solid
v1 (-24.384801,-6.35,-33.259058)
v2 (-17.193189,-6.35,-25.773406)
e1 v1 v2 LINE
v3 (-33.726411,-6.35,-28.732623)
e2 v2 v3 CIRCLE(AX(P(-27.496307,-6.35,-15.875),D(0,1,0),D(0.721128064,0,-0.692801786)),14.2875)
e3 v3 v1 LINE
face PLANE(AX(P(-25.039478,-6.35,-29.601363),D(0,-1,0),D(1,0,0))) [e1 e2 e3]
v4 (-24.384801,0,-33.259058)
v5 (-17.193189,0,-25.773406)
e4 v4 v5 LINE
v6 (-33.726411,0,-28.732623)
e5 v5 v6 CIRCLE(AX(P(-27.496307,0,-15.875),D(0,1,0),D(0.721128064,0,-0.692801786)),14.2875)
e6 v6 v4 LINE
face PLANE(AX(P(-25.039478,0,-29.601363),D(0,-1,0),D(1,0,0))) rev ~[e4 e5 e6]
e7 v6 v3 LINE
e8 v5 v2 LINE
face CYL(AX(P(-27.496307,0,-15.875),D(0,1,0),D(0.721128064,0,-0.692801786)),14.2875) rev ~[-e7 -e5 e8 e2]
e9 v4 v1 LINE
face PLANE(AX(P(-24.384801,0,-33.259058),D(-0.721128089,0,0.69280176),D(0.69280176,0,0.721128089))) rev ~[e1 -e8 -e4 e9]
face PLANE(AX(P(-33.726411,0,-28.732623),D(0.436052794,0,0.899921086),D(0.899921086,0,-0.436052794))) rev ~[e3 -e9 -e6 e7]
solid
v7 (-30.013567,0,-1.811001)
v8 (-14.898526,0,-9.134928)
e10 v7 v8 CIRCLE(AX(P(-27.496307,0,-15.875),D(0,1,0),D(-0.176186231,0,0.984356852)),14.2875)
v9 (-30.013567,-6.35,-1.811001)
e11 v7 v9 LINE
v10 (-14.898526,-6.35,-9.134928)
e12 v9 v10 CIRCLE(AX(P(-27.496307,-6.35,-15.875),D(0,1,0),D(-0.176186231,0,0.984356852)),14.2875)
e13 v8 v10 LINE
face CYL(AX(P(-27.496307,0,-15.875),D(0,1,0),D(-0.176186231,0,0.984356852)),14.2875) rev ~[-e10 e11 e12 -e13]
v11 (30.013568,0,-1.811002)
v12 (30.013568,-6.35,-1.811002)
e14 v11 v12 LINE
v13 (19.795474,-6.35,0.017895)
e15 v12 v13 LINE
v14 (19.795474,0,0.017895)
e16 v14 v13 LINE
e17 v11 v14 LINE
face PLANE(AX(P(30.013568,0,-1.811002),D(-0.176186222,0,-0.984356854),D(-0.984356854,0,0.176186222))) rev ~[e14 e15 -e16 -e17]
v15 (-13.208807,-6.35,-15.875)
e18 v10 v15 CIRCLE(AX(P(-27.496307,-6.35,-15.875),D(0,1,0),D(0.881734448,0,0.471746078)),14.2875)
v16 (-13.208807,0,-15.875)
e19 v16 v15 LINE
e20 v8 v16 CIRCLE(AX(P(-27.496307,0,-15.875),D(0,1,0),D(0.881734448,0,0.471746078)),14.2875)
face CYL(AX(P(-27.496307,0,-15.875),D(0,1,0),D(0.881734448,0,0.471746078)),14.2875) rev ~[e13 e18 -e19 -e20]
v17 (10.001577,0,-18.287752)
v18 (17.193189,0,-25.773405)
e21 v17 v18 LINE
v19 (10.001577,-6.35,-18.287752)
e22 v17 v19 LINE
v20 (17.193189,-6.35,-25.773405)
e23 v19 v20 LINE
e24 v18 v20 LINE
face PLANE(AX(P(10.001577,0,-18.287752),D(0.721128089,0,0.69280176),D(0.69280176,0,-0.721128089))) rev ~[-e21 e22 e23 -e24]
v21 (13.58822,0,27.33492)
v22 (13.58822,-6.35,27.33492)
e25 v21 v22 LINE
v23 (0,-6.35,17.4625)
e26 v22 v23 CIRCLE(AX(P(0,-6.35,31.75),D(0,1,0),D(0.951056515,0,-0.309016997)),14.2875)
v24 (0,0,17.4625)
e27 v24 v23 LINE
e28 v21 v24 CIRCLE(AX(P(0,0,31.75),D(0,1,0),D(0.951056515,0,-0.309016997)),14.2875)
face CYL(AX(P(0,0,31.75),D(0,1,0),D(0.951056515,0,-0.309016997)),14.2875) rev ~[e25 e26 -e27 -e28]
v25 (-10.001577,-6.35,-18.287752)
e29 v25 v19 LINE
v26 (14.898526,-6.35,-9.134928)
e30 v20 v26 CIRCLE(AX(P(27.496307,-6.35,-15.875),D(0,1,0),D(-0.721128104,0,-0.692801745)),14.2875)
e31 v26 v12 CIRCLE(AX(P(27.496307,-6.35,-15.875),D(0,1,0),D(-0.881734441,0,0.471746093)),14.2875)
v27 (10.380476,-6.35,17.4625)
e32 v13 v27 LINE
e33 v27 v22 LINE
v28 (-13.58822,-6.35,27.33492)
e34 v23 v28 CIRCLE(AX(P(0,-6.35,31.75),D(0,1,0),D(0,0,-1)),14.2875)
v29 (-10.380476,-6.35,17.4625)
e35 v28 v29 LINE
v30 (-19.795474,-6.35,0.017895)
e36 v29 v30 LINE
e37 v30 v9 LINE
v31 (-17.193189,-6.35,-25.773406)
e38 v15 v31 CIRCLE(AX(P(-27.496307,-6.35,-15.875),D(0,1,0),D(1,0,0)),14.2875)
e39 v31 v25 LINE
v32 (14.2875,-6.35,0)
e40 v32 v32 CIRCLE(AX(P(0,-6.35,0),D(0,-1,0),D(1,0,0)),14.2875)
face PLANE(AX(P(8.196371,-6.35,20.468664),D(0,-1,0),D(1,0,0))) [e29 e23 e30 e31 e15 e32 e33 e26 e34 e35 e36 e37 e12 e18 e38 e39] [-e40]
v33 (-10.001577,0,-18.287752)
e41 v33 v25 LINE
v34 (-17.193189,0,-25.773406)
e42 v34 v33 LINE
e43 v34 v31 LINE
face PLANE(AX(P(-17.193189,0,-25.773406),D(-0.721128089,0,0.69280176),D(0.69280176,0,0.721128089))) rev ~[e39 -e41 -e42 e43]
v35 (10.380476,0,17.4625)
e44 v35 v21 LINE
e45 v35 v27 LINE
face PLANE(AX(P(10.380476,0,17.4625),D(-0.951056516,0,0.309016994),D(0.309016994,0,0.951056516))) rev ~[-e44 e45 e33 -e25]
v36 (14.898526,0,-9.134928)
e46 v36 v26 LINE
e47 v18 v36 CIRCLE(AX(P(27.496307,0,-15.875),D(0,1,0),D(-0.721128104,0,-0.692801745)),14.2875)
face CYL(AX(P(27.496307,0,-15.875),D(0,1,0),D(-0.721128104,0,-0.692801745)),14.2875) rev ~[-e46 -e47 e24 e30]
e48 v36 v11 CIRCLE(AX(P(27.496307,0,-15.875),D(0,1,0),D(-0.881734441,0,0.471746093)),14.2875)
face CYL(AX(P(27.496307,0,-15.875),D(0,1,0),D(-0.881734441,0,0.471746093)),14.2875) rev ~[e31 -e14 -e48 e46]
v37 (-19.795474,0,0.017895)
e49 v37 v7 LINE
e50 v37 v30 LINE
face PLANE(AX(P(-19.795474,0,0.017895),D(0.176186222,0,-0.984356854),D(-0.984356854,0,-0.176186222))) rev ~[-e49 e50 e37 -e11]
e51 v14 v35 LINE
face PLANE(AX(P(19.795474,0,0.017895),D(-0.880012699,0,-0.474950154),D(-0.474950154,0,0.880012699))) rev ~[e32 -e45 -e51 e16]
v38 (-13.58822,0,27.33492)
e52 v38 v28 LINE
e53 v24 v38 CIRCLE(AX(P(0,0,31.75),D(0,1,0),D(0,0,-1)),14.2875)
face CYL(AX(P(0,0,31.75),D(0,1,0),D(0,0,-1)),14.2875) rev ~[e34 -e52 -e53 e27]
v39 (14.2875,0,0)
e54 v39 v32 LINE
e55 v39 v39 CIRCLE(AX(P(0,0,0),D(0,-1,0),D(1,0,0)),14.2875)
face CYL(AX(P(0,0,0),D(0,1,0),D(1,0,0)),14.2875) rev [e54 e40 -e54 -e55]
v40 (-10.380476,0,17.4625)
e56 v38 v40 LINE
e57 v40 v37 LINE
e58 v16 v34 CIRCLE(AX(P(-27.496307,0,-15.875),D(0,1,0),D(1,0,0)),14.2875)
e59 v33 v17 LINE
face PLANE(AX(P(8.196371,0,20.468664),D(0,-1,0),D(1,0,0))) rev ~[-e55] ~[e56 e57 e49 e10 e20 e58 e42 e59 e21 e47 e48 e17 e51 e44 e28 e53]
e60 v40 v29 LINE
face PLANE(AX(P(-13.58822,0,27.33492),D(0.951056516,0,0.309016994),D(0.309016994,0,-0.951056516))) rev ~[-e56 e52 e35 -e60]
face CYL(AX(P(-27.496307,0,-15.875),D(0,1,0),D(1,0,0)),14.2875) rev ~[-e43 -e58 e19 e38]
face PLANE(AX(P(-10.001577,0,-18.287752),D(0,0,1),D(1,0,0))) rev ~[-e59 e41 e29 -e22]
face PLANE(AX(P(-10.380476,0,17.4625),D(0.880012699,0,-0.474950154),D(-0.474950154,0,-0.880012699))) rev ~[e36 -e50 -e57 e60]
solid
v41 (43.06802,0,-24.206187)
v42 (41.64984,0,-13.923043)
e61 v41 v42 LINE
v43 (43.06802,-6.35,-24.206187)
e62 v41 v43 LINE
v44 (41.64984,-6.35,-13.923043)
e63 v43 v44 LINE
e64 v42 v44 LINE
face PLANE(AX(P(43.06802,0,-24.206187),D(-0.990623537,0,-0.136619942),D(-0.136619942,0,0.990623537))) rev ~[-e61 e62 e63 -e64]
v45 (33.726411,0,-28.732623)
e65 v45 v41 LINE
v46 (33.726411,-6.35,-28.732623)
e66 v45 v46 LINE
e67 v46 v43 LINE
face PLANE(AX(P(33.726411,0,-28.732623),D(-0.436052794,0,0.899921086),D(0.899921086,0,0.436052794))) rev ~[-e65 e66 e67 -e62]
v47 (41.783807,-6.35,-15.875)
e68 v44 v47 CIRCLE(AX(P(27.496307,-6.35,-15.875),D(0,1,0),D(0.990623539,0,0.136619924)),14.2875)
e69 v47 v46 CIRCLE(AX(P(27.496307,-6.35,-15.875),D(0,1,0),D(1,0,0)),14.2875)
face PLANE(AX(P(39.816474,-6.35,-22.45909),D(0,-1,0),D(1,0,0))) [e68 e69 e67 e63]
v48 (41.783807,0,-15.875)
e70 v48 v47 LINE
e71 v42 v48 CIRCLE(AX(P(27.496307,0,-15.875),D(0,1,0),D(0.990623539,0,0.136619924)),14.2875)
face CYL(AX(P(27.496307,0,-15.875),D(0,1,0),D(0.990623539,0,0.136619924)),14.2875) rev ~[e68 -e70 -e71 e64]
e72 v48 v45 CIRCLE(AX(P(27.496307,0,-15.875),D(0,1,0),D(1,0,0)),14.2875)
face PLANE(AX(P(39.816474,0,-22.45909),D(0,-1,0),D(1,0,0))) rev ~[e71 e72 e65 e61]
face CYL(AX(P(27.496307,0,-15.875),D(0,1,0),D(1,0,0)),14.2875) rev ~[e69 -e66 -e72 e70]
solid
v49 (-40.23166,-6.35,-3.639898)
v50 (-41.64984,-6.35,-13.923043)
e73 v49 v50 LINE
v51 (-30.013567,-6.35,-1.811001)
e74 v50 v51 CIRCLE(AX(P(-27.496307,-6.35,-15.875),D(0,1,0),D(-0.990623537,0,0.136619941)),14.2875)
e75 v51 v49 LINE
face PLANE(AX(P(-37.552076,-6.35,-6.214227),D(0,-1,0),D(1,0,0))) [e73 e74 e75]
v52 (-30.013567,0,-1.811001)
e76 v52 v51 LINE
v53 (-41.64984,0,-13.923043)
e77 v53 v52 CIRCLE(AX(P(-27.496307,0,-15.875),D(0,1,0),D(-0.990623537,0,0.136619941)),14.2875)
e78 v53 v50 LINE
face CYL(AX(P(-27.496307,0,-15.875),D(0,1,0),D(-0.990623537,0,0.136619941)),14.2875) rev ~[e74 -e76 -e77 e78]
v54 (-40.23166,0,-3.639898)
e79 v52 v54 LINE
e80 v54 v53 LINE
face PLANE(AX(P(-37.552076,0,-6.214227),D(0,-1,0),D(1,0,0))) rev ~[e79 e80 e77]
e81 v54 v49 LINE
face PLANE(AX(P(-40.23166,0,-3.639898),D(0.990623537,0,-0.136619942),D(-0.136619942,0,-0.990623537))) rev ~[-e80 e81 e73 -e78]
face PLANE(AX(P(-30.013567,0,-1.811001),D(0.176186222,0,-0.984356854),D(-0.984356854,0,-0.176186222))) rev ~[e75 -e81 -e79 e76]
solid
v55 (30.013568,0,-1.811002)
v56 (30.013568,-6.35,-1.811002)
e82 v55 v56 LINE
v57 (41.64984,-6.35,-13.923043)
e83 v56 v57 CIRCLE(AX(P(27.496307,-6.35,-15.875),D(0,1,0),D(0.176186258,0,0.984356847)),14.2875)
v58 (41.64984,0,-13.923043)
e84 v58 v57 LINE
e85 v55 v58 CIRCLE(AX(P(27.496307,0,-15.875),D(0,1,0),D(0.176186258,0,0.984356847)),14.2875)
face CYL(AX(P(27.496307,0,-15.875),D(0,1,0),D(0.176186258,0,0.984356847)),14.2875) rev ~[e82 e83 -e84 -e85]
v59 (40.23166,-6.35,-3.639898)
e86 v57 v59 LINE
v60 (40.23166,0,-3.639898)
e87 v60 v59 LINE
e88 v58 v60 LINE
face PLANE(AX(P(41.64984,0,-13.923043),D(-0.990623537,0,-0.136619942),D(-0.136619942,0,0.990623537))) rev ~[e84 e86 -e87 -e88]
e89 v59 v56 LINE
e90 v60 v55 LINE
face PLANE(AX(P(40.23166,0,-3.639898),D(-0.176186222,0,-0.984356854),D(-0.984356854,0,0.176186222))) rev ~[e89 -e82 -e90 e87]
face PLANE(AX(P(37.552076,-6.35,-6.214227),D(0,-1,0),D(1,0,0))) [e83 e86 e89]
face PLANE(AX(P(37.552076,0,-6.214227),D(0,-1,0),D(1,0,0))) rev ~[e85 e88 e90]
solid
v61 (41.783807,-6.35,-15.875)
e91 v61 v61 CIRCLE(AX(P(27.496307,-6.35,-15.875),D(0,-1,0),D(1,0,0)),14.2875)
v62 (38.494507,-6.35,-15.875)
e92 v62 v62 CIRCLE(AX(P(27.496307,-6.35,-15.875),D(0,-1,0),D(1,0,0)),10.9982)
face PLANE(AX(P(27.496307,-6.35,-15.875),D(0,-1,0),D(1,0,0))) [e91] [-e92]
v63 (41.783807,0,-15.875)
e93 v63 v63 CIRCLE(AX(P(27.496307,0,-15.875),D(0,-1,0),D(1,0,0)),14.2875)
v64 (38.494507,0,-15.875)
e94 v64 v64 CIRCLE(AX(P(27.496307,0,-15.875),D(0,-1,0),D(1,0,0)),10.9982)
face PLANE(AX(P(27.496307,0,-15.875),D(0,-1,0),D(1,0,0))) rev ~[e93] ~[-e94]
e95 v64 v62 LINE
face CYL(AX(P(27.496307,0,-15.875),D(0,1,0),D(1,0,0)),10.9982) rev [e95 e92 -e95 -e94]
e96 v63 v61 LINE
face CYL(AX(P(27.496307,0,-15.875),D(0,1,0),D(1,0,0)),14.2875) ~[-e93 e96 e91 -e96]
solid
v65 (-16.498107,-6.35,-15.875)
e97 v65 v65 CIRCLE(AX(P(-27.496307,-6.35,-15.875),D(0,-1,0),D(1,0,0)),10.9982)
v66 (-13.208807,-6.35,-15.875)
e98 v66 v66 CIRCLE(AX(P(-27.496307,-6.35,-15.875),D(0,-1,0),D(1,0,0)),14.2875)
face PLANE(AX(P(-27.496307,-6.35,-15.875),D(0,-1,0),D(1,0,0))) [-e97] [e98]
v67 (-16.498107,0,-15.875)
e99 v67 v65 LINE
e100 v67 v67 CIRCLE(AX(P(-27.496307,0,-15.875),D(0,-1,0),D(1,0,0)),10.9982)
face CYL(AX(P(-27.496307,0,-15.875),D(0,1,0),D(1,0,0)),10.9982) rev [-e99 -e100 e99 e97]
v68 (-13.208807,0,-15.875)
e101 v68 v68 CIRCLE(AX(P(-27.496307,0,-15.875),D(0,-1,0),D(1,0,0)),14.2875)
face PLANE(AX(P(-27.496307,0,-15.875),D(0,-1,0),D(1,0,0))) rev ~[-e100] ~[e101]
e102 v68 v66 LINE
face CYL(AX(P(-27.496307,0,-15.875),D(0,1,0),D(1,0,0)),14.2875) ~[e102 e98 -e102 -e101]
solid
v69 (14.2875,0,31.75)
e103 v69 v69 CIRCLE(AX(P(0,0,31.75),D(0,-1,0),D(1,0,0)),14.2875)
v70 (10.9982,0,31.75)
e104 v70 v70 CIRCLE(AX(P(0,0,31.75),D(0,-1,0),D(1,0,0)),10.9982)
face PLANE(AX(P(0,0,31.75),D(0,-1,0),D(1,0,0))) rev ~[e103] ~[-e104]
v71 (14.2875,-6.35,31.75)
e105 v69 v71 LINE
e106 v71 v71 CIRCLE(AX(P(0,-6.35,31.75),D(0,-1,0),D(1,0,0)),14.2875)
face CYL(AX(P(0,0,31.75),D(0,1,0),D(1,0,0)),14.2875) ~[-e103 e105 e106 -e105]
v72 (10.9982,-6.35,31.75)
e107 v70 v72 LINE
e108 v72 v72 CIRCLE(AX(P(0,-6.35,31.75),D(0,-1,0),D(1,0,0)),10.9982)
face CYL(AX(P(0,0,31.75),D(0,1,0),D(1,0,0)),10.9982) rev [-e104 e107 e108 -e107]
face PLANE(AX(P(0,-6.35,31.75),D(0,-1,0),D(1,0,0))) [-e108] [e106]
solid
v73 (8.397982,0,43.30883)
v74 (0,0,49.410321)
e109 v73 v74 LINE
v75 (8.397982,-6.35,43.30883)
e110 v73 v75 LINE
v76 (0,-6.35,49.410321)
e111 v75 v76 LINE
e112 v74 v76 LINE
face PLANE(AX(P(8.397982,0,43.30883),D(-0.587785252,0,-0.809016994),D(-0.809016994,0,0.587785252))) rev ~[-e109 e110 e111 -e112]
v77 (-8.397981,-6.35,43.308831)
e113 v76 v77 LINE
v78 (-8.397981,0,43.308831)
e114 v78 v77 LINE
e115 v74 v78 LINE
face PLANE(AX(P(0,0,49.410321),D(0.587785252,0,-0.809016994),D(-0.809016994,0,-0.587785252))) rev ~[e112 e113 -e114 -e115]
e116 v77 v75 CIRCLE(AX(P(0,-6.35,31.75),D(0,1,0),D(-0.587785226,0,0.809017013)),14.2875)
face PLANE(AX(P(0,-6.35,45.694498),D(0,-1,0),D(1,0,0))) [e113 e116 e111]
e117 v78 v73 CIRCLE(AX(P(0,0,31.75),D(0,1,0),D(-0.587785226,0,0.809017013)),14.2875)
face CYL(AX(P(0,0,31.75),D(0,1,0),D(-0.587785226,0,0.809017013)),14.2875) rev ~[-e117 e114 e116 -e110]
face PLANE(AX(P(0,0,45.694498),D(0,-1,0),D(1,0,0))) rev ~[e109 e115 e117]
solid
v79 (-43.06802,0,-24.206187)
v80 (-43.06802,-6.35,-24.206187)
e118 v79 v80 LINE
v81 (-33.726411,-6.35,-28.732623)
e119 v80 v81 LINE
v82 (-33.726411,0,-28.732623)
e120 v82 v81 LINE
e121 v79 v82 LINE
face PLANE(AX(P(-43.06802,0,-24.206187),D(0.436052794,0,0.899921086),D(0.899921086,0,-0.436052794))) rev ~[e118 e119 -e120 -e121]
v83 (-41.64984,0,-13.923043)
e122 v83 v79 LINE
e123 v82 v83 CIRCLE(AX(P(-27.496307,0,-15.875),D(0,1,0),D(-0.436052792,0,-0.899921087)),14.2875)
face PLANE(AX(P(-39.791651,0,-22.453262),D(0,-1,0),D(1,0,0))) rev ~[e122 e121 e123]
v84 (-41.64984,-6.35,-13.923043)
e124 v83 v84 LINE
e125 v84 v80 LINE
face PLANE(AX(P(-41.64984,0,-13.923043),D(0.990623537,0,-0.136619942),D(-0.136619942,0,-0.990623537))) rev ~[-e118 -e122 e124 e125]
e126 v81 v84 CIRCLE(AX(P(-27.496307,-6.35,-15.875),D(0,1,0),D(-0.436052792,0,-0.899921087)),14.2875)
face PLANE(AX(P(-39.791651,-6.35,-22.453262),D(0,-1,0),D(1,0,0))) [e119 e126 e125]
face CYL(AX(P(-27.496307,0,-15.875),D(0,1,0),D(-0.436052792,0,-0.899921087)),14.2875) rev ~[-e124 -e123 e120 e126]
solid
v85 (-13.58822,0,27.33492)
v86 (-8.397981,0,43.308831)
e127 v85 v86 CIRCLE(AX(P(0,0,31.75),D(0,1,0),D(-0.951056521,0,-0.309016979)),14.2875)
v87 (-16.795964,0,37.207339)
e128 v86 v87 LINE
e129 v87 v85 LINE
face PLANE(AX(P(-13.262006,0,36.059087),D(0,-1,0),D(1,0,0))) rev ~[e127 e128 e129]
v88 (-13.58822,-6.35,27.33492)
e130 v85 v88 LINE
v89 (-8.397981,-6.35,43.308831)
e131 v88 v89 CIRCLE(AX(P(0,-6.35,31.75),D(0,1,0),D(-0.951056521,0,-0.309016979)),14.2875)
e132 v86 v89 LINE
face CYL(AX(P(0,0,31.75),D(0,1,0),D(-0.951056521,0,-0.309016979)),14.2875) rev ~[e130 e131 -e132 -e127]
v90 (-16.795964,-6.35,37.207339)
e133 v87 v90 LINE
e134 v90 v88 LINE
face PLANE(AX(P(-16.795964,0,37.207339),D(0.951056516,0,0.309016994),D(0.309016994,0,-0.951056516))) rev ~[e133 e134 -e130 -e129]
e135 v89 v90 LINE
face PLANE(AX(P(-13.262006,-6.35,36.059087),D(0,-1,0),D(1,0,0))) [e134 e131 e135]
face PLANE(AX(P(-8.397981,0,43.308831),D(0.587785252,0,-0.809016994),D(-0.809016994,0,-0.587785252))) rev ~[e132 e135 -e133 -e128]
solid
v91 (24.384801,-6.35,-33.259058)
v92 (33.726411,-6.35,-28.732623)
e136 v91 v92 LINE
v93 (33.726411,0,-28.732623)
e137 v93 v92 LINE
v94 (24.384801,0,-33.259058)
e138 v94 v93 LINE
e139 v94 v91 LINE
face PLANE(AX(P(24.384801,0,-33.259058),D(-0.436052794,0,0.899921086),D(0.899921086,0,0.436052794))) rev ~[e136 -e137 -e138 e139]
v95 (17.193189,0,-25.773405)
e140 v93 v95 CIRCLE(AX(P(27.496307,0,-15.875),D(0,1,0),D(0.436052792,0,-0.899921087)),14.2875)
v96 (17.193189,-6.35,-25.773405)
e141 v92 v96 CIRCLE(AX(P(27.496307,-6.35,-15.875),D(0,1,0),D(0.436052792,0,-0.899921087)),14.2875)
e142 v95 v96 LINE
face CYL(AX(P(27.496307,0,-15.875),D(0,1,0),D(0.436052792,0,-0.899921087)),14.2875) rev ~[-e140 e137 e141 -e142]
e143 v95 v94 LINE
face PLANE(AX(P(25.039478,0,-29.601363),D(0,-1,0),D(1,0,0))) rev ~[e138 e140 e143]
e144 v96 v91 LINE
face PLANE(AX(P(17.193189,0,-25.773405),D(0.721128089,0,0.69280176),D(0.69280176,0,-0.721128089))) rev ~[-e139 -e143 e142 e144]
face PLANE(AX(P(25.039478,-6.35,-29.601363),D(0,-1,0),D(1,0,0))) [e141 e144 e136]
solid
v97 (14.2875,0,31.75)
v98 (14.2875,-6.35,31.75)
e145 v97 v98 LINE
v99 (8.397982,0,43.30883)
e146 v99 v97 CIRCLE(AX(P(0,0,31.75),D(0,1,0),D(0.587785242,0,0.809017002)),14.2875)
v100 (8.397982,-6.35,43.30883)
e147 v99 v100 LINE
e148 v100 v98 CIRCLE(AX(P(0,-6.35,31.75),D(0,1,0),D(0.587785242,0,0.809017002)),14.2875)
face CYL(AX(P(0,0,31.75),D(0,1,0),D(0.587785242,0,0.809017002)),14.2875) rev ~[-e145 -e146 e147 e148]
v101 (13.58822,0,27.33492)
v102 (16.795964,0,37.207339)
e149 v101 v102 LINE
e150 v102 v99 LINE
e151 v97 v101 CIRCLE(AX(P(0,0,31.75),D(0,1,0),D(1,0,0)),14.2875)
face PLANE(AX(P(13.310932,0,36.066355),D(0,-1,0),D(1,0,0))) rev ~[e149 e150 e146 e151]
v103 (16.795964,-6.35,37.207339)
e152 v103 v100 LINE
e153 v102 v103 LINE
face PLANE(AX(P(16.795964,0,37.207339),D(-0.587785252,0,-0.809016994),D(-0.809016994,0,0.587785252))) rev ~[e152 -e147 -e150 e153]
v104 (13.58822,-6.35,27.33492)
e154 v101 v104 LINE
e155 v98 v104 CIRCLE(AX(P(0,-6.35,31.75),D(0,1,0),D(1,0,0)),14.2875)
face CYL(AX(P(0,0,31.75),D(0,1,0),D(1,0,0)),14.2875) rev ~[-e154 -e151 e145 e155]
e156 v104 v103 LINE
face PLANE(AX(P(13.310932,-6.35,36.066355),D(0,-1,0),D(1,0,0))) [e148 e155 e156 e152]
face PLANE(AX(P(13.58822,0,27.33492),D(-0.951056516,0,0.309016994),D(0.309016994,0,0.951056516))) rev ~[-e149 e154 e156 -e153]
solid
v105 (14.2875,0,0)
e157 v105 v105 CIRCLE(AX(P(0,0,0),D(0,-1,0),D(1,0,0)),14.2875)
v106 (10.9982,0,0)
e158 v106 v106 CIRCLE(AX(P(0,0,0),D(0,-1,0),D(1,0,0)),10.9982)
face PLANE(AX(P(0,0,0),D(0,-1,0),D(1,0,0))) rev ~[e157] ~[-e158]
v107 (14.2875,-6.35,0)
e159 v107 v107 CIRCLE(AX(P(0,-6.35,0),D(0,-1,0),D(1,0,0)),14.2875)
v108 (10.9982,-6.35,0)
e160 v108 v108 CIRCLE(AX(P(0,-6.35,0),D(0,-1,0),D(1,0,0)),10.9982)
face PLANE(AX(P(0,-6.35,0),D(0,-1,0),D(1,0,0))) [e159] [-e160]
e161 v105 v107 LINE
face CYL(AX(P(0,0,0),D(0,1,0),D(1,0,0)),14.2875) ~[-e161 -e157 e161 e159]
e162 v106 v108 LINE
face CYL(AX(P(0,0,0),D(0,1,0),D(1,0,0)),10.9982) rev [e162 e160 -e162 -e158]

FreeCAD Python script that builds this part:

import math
import FreeCAD as App
import Part
import Sketcher
from FreeCAD import Vector
Q = App.Units.Quantity

doc = App.newDocument("Part")
params = doc.addObject("Spreadsheet::Sheet", "Params")
for row, (alias, value) in enumerate([
    ("sketch1_radius", "0.5625 in"),
    ("pad1_length", "0.25 in"),
    ("sketch2_radius", "0.5625 in"),
    ("pad2_length", "0.25 in"),
    ("sketch3_diameter", "1.125 in"),
    ("pad3_length", "0.25 in"),
    ("sketch4_radius", "0.5625 in"),
    ("pad4_length", "0.25 in"),
    ("sketch5_radius", "0.5625 in"),
    ("pad5_length", "0.25 in"),
    ("sketch6_radius", "0.5625 in"),
    ("pad6_length", "0.25 in"),
    ("sketch7_radius", "0.5625 in"),
    ("pad7_length", "0.25 in"),
    ("sketch8_radius", "0.5625 in"),
    ("pad8_length", "0.25 in"),
    ("sketch9_radius", "0.5625 in"),
    ("pad9_length", "0.25 in"),
    ("sketch10_radius", "0.5625 in"),
    ("pad10_length", "0.25 in"),
    ("sketch11_diameter", "1.125 in"),
    ("sketch11_diameter2", "0.866 in"),
    ("pad11_length", "0.25 in"),
    ("sketch12_diameter", "1.125 in"),
    ("sketch12_diameter2", "0.866 in"),
    ("pad12_length", "0.25 in"),
    ("sketch13_diameter", "1.125 in"),
    ("sketch13_diameter2", "0.866 in"),
    ("pad13_length", "0.25 in"),
    ("sketch14_diameter", "1.125 in"),
    ("sketch14_diameter2", "0.866 in"),
    ("pad14_length", "0.25 in"),
], start=1):
    params.set(f"A{row}", alias)
    params.set(f"B{row}", "=" + value)
    params.setAlias(f"B{row}", alias)

body = doc.addObject("PartDesign::Body", "Body")

# Sketch on XZ plane
sketch1 = body.newObject("Sketcher::SketchObject", "Sketch")
sketch1.AttachmentSupport = (doc.getObject("XZ_Plane"), [""])
sketch1.MapMode = "FlatFace"
sketch1.addGeometry(Part.ArcOfCircle(Part.Circle(Vector(0, 31.75, 0), Vector(0, 0, 1), 14.2875), math.radians(54.000001), math.radians(125.999998)), False)
sketch1.addGeometry(Part.LineSegment(Vector(8.397982, 43.30883, 0), Vector(0, 49.410321, 0)), False)
sketch1.addGeometry(Part.LineSegment(Vector(0, 49.410321, 0), Vector(-8.397981, 43.308831, 0)), False)
sketch1.addConstraint(Sketcher.Constraint("Tangent", 0, 1, 1, 1))
sketch1.addConstraint(Sketcher.Constraint("Coincident", 1, 2, 2, 1))
sketch1.addConstraint(Sketcher.Constraint("Tangent", 2, 2, 0, 2))
sketch1.addConstraint(Sketcher.Constraint("Symmetric", 0, 1, 2, 2, -2))
sketch1.addConstraint(Sketcher.Constraint("Angle", 1, Q("144 deg")))
sketch1.addConstraint(Sketcher.Constraint("Radius", 0, Q("0.5625 in")))
sketch1.addConstraint(Sketcher.Constraint("DistanceY", -1, 1, 0, 3, Q("1.25 in")))
sketch1.setExpression("Constraints[5]", "Params.sketch1_radius")
pad1 = body.newObject("PartDesign::Pad", "Pad")
pad1.Profile = sketch1
pad1.setExpression("Length", "Params.pad1_length")
body2 = doc.addObject("PartDesign::Body", "Body001")

# Sketch on XZ plane
sketch2 = body2.newObject("Sketcher::SketchObject", "Sketch001")
sketch2.AttachmentSupport = (doc.getObject("XZ_Plane001"), [""])
sketch2.MapMode = "FlatFace"
sketch2.addGeometry(Part.ArcOfCircle(Part.Circle(Vector(0, 31.75, 0), Vector(0, 0, 1), 14.2875), math.radians(0), math.radians(54.000001)), False)
sketch2.addGeometry(Part.ArcOfCircle(Part.Circle(Vector(0, 31.75, 0), Vector(0, 0, 1), 14.2875), math.radians(-18), math.radians(0)), False)
sketch2.addGeometry(Part.LineSegment(Vector(13.58822, 27.33492, 0), Vector(16.795964, 37.207339, 0)), False)
sketch2.addGeometry(Part.LineSegment(Vector(16.795964, 37.207339, 0), Vector(8.397982, 43.30883, 0)), False)
sketch2.addConstraint(Sketcher.Constraint("Tangent", 0, 1, 1, 2))
sketch2.addConstraint(Sketcher.Constraint("Tangent", 1, 1, 2, 1))
sketch2.addConstraint(Sketcher.Constraint("Coincident", 2, 2, 3, 1))
sketch2.addConstraint(Sketcher.Constraint("Tangent", 3, 2, 0, 2))
sketch2.addConstraint(Sketcher.Constraint("Equal", 0, 1))
sketch2.addConstraint(Sketcher.Constraint("PointOnObject", 0, 3, -2))
sketch2.addConstraint(Sketcher.Constraint("Horizontal", 1, 3, 0, 1))
sketch2.addConstraint(Sketcher.Constraint("Angle", 2, Q("72 deg")))
sketch2.addConstraint(Sketcher.Constraint("Angle", 3, Q("144 deg")))
sketch2.addConstraint(Sketcher.Constraint("Radius", 0, Q("0.5625 in")))
sketch2.addConstraint(Sketcher.Constraint("DistanceY", -1, 1, 0, 3, Q("1.25 in")))
sketch2.setExpression("Constraints[9]", "Params.sketch2_radius")
pad2 = body2.newObject("PartDesign::Pad", "Pad001")
pad2.Profile = sketch2
pad2.setExpression("Length", "Params.pad2_length")
body3 = doc.addObject("PartDesign::Body", "Body002")

# Sketch on XZ plane
sketch3 = body3.newObject("Sketcher::SketchObject", "Sketch002")
sketch3.AttachmentSupport = (doc.getObject("XZ_Plane002"), [""])
sketch3.MapMode = "FlatFace"
sketch3.addGeometry(Part.LineSegment(Vector(10.380476, 17.4625, 0), Vector(13.58822, 27.33492, 0)), False)
sketch3.addGeometry(Part.ArcOfCircle(Part.Circle(Vector(0, 31.75, 0), Vector(0, 0, 1), 14.2875), math.radians(-90), math.radians(-18)), False)
sketch3.addGeometry(Part.ArcOfCircle(Part.Circle(Vector(0, 31.75, 0), Vector(0, 0, 1), 14.2875), math.radians(-162.000001), math.radians(-90)), False)
sketch3.addGeometry(Part.LineSegment(Vector(-13.58822, 27.33492, 0), Vector(-10.380476, 17.4625, 0)), False)
sketch3.addGeometry(Part.LineSegment(Vector(-10.380476, 17.4625, 0), Vector(-19.795474, 0.017895, 0)), False)
sketch3.addGeometry(Part.LineSegment(Vector(-19.795474, 0.017895, 0), Vector(-30.013567, -1.811001, 0)), False)
sketch3.addGeometry(Part.ArcOfCircle(Part.Circle(Vector(-27.496307, -15.875, 0), Vector(0, 0, 1), 14.2875), math.radians(28.147698), math.radians(100.147697)), False)
sketch3.addGeometry(Part.ArcOfCircle(Part.Circle(Vector(-27.496307, -15.875, 0), Vector(0, 0, 1), 14.2875), math.radians(0), math.radians(28.147698)), False)
sketch3.addGeometry(Part.ArcOfCircle(Part.Circle(Vector(-27.496307, -15.875, 0), Vector(0, 0, 1), 14.2875), math.radians(-43.852306), math.radians(0)), False)
sketch3.addGeometry(Part.LineSegment(Vector(-17.193189, -25.773406, 0), Vector(-10.001577, -18.287752, 0)), False)
sketch3.addGeometry(Part.LineSegment(Vector(-10.001577, -18.287752, 0), Vector(10.001577, -18.287752, 0)), False)
sketch3.addGeometry(Part.LineSegment(Vector(10.001577, -18.287752, 0), Vector(17.193189, -25.773405, 0)), False)
sketch3.addGeometry(Part.ArcOfCircle(Part.Circle(Vector(27.496307, -15.875, 0), Vector(0, 0, 1), 14.2875), math.radians(151.852301), math.radians(223.852302)), False)
sketch3.addGeometry(Part.ArcOfCircle(Part.Circle(Vector(27.496307, -15.875, 0), Vector(0, 0, 1), 14.2875), math.radians(79.852302), math.radians(151.852301)), False)
sketch3.addGeometry(Part.LineSegment(Vector(30.013568, -1.811002, 0), Vector(19.795474, 0.017895, 0)), False)
sketch3.addGeometry(Part.LineSegment(Vector(19.795474, 0.017895, 0), Vector(10.380476, 17.4625, 0)), False)
sketch3.addGeometry(Part.Circle(Vector(0, 0, 0), Vector(0, 0, 1), 14.2875), False)
sketch3.addConstraint(Sketcher.Constraint("Tangent", 0, 2, 1, 2))
sketch3.addConstraint(Sketcher.Constraint("Tangent", 1, 1, 2, 2))
sketch3.addConstraint(Sketcher.Constraint("Tangent", 2, 1, 3, 1))
sketch3.addConstraint(Sketcher.Constraint("Coincident", 3, 2, 4, 1))
sketch3.addConstraint(Sketcher.Constraint("Coincident", 4, 2, 5, 1))
sketch3.addConstraint(Sketcher.Constraint("Tangent", 5, 2, 6, 2))
sketch3.addConstraint(Sketcher.Constraint("Tangent", 6, 1, 7, 2))
sketch3.addConstraint(Sketcher.Constraint("Tangent", 7, 1, 8, 2))
sketch3.addConstraint(Sketcher.Constraint("Tangent", 8, 1, 9, 1))
sketch3.addConstraint(Sketcher.Constraint("Coincident", 9, 2, 10, 1))
sketch3.addConstraint(Sketcher.Constraint("Coincident", 10, 2, 11, 1))
sketch3.addConstraint(Sketcher.Constraint("Tangent", 11, 2, 12, 2))
sketch3.addConstraint(Sketcher.Constraint("Tangent", 12, 1, 13, 2))
sketch3.addConstraint(Sketcher.Constraint("Tangent", 13, 1, 14, 1))
sketch3.addConstraint(Sketcher.Constraint("Coincident", 14, 2, 15, 1))
sketch3.addConstraint(Sketcher.Constraint("Coincident", 15, 2, 0, 1))
sketch3.addConstraint(Sketcher.Constraint("Horizontal", 10))
sketch3.addConstraint(Sketcher.Constraint("Coincident", 16, 3, -1, 1))
sketch3.addConstraint(Sketcher.Constraint("Coincident", 8, 3, 6, 3))
sketch3.addConstraint(Sketcher.Constraint("Equal", 1, 2))
sketch3.addConstraint(Sketcher.Constraint("Equal", 2, 6))
sketch3.addConstraint(Sketcher.Constraint("Equal", 8, 12))
sketch3.addConstraint(Sketcher.Constraint("Equal", 12, 13))
sketch3.addConstraint(Sketcher.Constraint("Equal", 13, 16))
sketch3.addConstraint(Sketcher.Constraint("Symmetric", 6, 3, 12, 3, -2))
sketch3.addConstraint(Sketcher.Constraint("Symmetric", 0, 2, 2, 1, -2))
sketch3.addConstraint(Sketcher.Constraint("Symmetric", 4, 2, 14, 2, -2))
sketch3.addConstraint(Sketcher.Constraint("PointOnObject", 1, 1, -2))
sketch3.addConstraint(Sketcher.Constraint("Horizontal", 1, 1, 3, 2))
sketch3.addConstraint(Sketcher.Constraint("Horizontal", 13, 3, 7, 1))
sketch3.addConstraint(Sketcher.Constraint("Horizontal", 8, 1, 11, 2))
sketch3.addConstraint(Sketcher.Constraint("Horizontal", 6, 1, 12, 1))
sketch3.addConstraint(Sketcher.Constraint("Horizontal", 3, 2, 15, 2))
sketch3.addConstraint(Sketcher.Constraint("Equal", 3, 5))
sketch3.addConstraint(Sketcher.Constraint("Equal", 5, 9))
sketch3.addConstraint(Sketcher.Constraint("Diameter", 16, Q("1.125 in")))
sketch3.addConstraint(Sketcher.Constraint("Angle", 0, Q("72 deg")))
sketch3.addConstraint(Sketcher.Constraint("DistanceY", -1, 1, 1, 3, Q("1.25 in")))
sketch3.addConstraint(Sketcher.Constraint("DistanceY", 6, 3, -1, 1, Q("0.625 in")))
sketch3.addConstraint(Sketcher.Constraint("DistanceY", 5, 2, -1, 1, 1.811001))
sketch3.addConstraint(Sketcher.Constraint("Distance", 4, 19.823128))
sketch3.addConstraint(Sketcher.Constraint("DistanceX", 10, 1, 10, 2, 20.003153))
sketch3.addConstraint(Sketcher.Constraint("DistanceX", 4, 2, 6, 1, 4.896949))
sketch3.setExpression("Constraints[35]", "Params.sketch3_diameter")
pad3 = body3.newObject("PartDesign::Pad", "Pad002")
pad3.Profile = sketch3
pad3.setExpression("Length", "Params.pad3_length")
body4 = doc.addObject("PartDesign::Body", "Body003")

# Sketch on XZ plane
sketch4 = body4.newObject("Sketcher::SketchObject", "Sketch003")
sketch4.AttachmentSupport = (doc.getObject("XZ_Plane003"), [""])
sketch4.MapMode = "FlatFace"
sketch4.addGeometry(Part.ArcOfCircle(Part.Circle(Vector(0, 31.75, 0), Vector(0, 0, 1), 14.2875), math.radians(125.999998), math.radians(197.999999)), False)
sketch4.addGeometry(Part.LineSegment(Vector(-8.397981, 43.308831, 0), Vector(-16.795964, 37.207339, 0)), False)
sketch4.addGeometry(Part.LineSegment(Vector(-16.795964, 37.207339, 0), Vector(-13.58822, 27.33492, 0)), False)
sketch4.addConstraint(Sketcher.Constraint("Tangent", 0, 1, 1, 1))
sketch4.addConstraint(Sketcher.Constraint("Coincident", 1, 2, 2, 1))
sketch4.addConstraint(Sketcher.Constraint("Tangent", 2, 2, 0, 2))
sketch4.addConstraint(Sketcher.Constraint("PointOnObject", 0, 3, -2))
sketch4.addConstraint(Sketcher.Constraint("Angle", 1, Q("-144 deg")))
sketch4.addConstraint(Sketcher.Constraint("Angle", 2, Q("-72 deg")))
sketch4.addConstraint(Sketcher.Constraint("Radius", 0, Q("0.5625 in")))
sketch4.addConstraint(Sketcher.Constraint("DistanceY", -1, 1, 0, 3, Q("1.25 in")))
sketch4.setExpression("Constraints[6]", "Params.sketch4_radius")
pad4 = body4.newObject("PartDesign::Pad", "Pad003")
pad4.Profile = sketch4
pad4.setExpression("Length", "Params.pad4_length")
body5 = doc.addObject("PartDesign::Body", "Body004")

# Sketch on XZ plane
sketch5 = body5.newObject("Sketcher::SketchObject", "Sketch004")
sketch5.AttachmentSupport = (doc.getObject("XZ_Plane004"), [""])
sketch5.MapMode = "FlatFace"
sketch5.addGeometry(Part.LineSegment(Vector(43.06802, -24.206187, 0), Vector(41.64984, -13.923043, 0)), False)
sketch5.addGeometry(Part.ArcOfCircle(Part.Circle(Vector(27.496307, -15.875, 0), Vector(0, 0, 1), 14.2875), math.radians(0), math.radians(7.852303)), False)
sketch5.addGeometry(Part.ArcOfCircle(Part.Circle(Vector(27.496307, -15.875, 0), Vector(0, 0, 1), 14.2875), math.radians(-64.147696), math.radians(0)), False)
sketch5.addGeometry(Part.LineSegment(Vector(33.726411, -28.732623, 0), Vector(43.06802, -24.206187, 0)), False)
sketch5.addConstraint(Sketcher.Constraint("Tangent", 0, 2, 1, 2))
sketch5.addConstraint(Sketcher.Constraint("Tangent", 1, 1, 2, 2))
sketch5.addConstraint(Sketcher.Constraint("Tangent", 2, 1, 3, 1))
sketch5.addConstraint(Sketcher.Constraint("Coincident", 3, 2, 0, 1))
sketch5.addConstraint(Sketcher.Constraint("Equal", 1, 2))
sketch5.addConstraint(Sketcher.Constraint("Horizontal", 2, 3, 1, 1))
sketch5.addConstraint(Sketcher.Constraint("Radius", 1, Q("0.5625 in")))
sketch5.addConstraint(Sketcher.Constraint("DistanceY", 1, 3, -1, 1, Q("0.625 in")))
sketch5.addConstraint(Sketcher.Constraint("DistanceX", -1, 1, 0, 2, 41.64984))
sketch5.addConstraint(Sketcher.Constraint("DistanceX", -1, 1, 2, 1, 33.726411))
sketch5.addConstraint(Sketcher.Constraint("DistanceX", -1, 1, 3, 2, 43.06802))
sketch5.setExpression("Constraints[6]", "Params.sketch5_radius")
pad5 = body5.newObject("PartDesign::Pad", "Pad004")
pad5.Profile = sketch5
pad5.setExpression("Length", "Params.pad5_length")
body6 = doc.addObject("PartDesign::Body", "Body005")

# Sketch on XZ plane
sketch6 = body6.newObject("Sketcher::SketchObject", "Sketch005")
sketch6.AttachmentSupport = (doc.getObject("XZ_Plane005"), [""])
sketch6.MapMode = "FlatFace"
sketch6.addGeometry(Part.ArcOfCircle(Part.Circle(Vector(27.496307, -15.875, 0), Vector(0, 0, 1), 14.2875), math.radians(-136.147698), math.radians(-64.147696)), False)
sketch6.addGeometry(Part.LineSegment(Vector(17.193189, -25.773405, 0), Vector(24.384801, -33.259058, 0)), False)
sketch6.addGeometry(Part.LineSegment(Vector(24.384801, -33.259058, 0), Vector(33.726411, -28.732623, 0)), False)
sketch6.addConstraint(Sketcher.Constraint("Tangent", 0, 1, 1, 1))
sketch6.addConstraint(Sketcher.Constraint("Coincident", 1, 2, 2, 1))
sketch6.addConstraint(Sketcher.Constraint("Tangent", 2, 2, 0, 2))
sketch6.addConstraint(Sketcher.Constraint("Radius", 0, Q("0.5625 in")))
sketch6.addConstraint(Sketcher.Constraint("DistanceY", 0, 3, -1, 1, Q("0.625 in")))
sketch6.addConstraint(Sketcher.Constraint("DistanceX", -1, 1, 1, 2, 24.384801))
sketch6.addConstraint(Sketcher.Constraint("DistanceX", -1, 1, 0, 1, 17.193189))
sketch6.addConstraint(Sketcher.Constraint("DistanceY", 1, 2, -1, 1, 33.259058))
sketch6.setExpression("Constraints[3]", "Params.sketch6_radius")
pad6 = body6.newObject("PartDesign::Pad", "Pad005")
pad6.Profile = sketch6
pad6.setExpression("Length", "Params.pad6_length")
body7 = doc.addObject("PartDesign::Body", "Body006")

# Sketch on XZ plane
sketch7 = body7.newObject("Sketcher::SketchObject", "Sketch006")
sketch7.AttachmentSupport = (doc.getObject("XZ_Plane006"), [""])
sketch7.MapMode = "FlatFace"
sketch7.addGeometry(Part.LineSegment(Vector(40.23166, -3.639898, 0), Vector(30.013568, -1.811002, 0)), False)
sketch7.addGeometry(Part.ArcOfCircle(Part.Circle(Vector(27.496307, -15.875, 0), Vector(0, 0, 1), 14.2875), math.radians(7.852303), math.radians(79.852302)), False)
sketch7.addGeometry(Part.LineSegment(Vector(41.64984, -13.923043, 0), Vector(40.23166, -3.639898, 0)), False)
sketch7.addConstraint(Sketcher.Constraint("Coincident", 0, 2, 1, 2))
sketch7.addConstraint(Sketcher.Constraint("Coincident", 1, 1, 2, 1))
sketch7.addConstraint(Sketcher.Constraint("Coincident", 2, 2, 0, 1))
sketch7.addConstraint(Sketcher.Constraint("Radius", 1, Q("0.5625 in")))
sketch7.addConstraint(Sketcher.Constraint("DistanceY", 1, 3, -1, 1, Q("0.625 in")))
sketch7.addConstraint(Sketcher.Constraint("DistanceY", 0, 2, -1, 1, 1.811002))
sketch7.addConstraint(Sketcher.Constraint("DistanceY", 2, 2, -1, 1, 3.639898))
sketch7.addConstraint(Sketcher.Constraint("DistanceX", -1, 1, 1, 1, 41.64984))
sketch7.addConstraint(Sketcher.Constraint("DistanceX", -1, 1, 2, 2, 40.23166))
sketch7.addConstraint(Sketcher.Constraint("DistanceY", 1, 1, 0, 2, 12.112041))
sketch7.setExpression("Constraints[3]", "Params.sketch7_radius")
pad7 = body7.newObject("PartDesign::Pad", "Pad006")
pad7.Profile = sketch7
pad7.setExpression("Length", "Params.pad7_length")
body8 = doc.addObject("PartDesign::Body", "Body007")

# Sketch on XZ plane
sketch8 = body8.newObject("Sketcher::SketchObject", "Sketch007")
sketch8.AttachmentSupport = (doc.getObject("XZ_Plane007"), [""])
sketch8.MapMode = "FlatFace"
sketch8.addGeometry(Part.LineSegment(Vector(-24.384801, -33.259058, 0), Vector(-17.193189, -25.773406, 0)), False)
sketch8.addGeometry(Part.ArcOfCircle(Part.Circle(Vector(-27.496307, -15.875, 0), Vector(0, 0, 1), 14.2875), math.radians(-115.852304), math.radians(-43.852306)), False)
sketch8.addGeometry(Part.LineSegment(Vector(-33.726411, -28.732623, 0), Vector(-24.384801, -33.259058, 0)), False)
sketch8.addConstraint(Sketcher.Constraint("Tangent", 0, 2, 1, 2))
sketch8.addConstraint(Sketcher.Constraint("Tangent", 1, 1, 2, 1))
sketch8.addConstraint(Sketcher.Constraint("Coincident", 2, 2, 0, 1))
sketch8.addConstraint(Sketcher.Constraint("Radius", 1, Q("0.5625 in")))
sketch8.addConstraint(Sketcher.Constraint("DistanceY", 1, 3, -1, 1, Q("0.625 in")))
sketch8.addConstraint(Sketcher.Constraint("DistanceX", 2, 2, -1, 1, 24.384801))
sketch8.addConstraint(Sketcher.Constraint("DistanceX", 0, 2, -1, 1, 17.193189))
sketch8.addConstraint(Sketcher.Constraint("DistanceX", 1, 1, -1, 1, 33.726411))
sketch8.setExpression("Constraints[3]", "Params.sketch8_radius")
pad8 = body8.newObject("PartDesign::Pad", "Pad007")
pad8.Profile = sketch8
pad8.setExpression("Length", "Params.pad8_length")
body9 = doc.addObject("PartDesign::Body", "Body008")

# Sketch on XZ plane
sketch9 = body9.newObject("Sketcher::SketchObject", "Sketch008")
sketch9.AttachmentSupport = (doc.getObject("XZ_Plane008"), [""])
sketch9.MapMode = "FlatFace"
sketch9.addGeometry(Part.ArcOfCircle(Part.Circle(Vector(-27.496307, -15.875, 0), Vector(0, 0, 1), 14.2875), math.radians(172.147696), math.radians(244.147696)), False)
sketch9.addGeometry(Part.LineSegment(Vector(-41.64984, -13.923043, 0), Vector(-43.06802, -24.206187, 0)), False)
sketch9.addGeometry(Part.LineSegment(Vector(-43.06802, -24.206187, 0), Vector(-33.726411, -28.732623, 0)), False)
sketch9.addConstraint(Sketcher.Constraint("Tangent", 0, 1, 1, 1))
sketch9.addConstraint(Sketcher.Constraint("Coincident", 1, 2, 2, 1))
sketch9.addConstraint(Sketcher.Constraint("Tangent", 2, 2, 0, 2))
sketch9.addConstraint(Sketcher.Constraint("Radius", 0, Q("0.5625 in")))
sketch9.addConstraint(Sketcher.Constraint("DistanceY", 0, 3, -1, 1, Q("0.625 in")))
sketch9.addConstraint(Sketcher.Constraint("DistanceX", 0, 1, -1, 1, 41.64984))
sketch9.addConstraint(Sketcher.Constraint("DistanceX", 1, 2, -1, 1, 43.06802))
sketch9.addConstraint(Sketcher.Constraint("DistanceX", 2, 2, -1, 1, 33.726411))
sketch9.setExpression("Constraints[3]", "Params.sketch9_radius")
pad9 = body9.newObject("PartDesign::Pad", "Pad008")
pad9.Profile = sketch9
pad9.setExpression("Length", "Params.pad9_length")
body10 = doc.addObject("PartDesign::Body", "Body009")

# Sketch on XZ plane
sketch10 = body10.newObject("Sketcher::SketchObject", "Sketch009")
sketch10.AttachmentSupport = (doc.getObject("XZ_Plane009"), [""])
sketch10.MapMode = "FlatFace"
sketch10.addGeometry(Part.ArcOfCircle(Part.Circle(Vector(-27.496307, -15.875, 0), Vector(0, 0, 1), 14.2875), math.radians(100.147697), math.radians(172.147696)), False)
sketch10.addGeometry(Part.LineSegment(Vector(-30.013567, -1.811001, 0), Vector(-40.23166, -3.639898, 0)), False)
sketch10.addGeometry(Part.LineSegment(Vector(-40.23166, -3.639898, 0), Vector(-41.64984, -13.923043, 0)), False)
sketch10.addConstraint(Sketcher.Constraint("Tangent", 0, 1, 1, 1))
sketch10.addConstraint(Sketcher.Constraint("Coincident", 1, 2, 2, 1))
sketch10.addConstraint(Sketcher.Constraint("Tangent", 2, 2, 0, 2))
sketch10.addConstraint(Sketcher.Constraint("Radius", 0, Q("0.5625 in")))
sketch10.addConstraint(Sketcher.Constraint("DistanceY", 0, 3, -1, 1, Q("0.625 in")))
sketch10.addConstraint(Sketcher.Constraint("DistanceY", 0, 1, -1, 1, 1.811001))
sketch10.addConstraint(Sketcher.Constraint("DistanceY", 1, 2, -1, 1, 3.639898))
sketch10.addConstraint(Sketcher.Constraint("DistanceX", 1, 2, -1, 1, 40.23166))
sketch10.setExpression("Constraints[3]", "Params.sketch10_radius")
pad10 = body10.newObject("PartDesign::Pad", "Pad009")
pad10.Profile = sketch10
pad10.setExpression("Length", "Params.pad10_length")
body11 = doc.addObject("PartDesign::Body", "Body010")

# Sketch on XZ plane
sketch11 = body11.newObject("Sketcher::SketchObject", "Sketch010")
sketch11.AttachmentSupport = (doc.getObject("XZ_Plane010"), [""])
sketch11.MapMode = "FlatFace"
sketch11.addGeometry(Part.Circle(Vector(0, 31.75, 0), Vector(0, 0, 1), 14.2875), False)
sketch11.addGeometry(Part.Circle(Vector(0, 31.75, 0), Vector(0, 0, 1), 10.9982), False)
sketch11.addConstraint(Sketcher.Constraint("Coincident", 1, 3, 0, 3))
sketch11.addConstraint(Sketcher.Constraint("PointOnObject", 0, 3, -2))
sketch11.addConstraint(Sketcher.Constraint("Diameter", 0, Q("1.125 in")))
sketch11.addConstraint(Sketcher.Constraint("Diameter", 1, Q("0.866 in")))
sketch11.addConstraint(Sketcher.Constraint("DistanceY", -1, 1, 0, 3, Q("1.25 in")))
sketch11.setExpression("Constraints[2]", "Params.sketch11_diameter")
sketch11.setExpression("Constraints[3]", "Params.sketch11_diameter2")
pad11 = body11.newObject("PartDesign::Pad", "Pad010")
pad11.Profile = sketch11
pad11.setExpression("Length", "Params.pad11_length")
body12 = doc.addObject("PartDesign::Body", "Body011")

# Sketch on XZ plane
sketch12 = body12.newObject("Sketcher::SketchObject", "Sketch011")
sketch12.AttachmentSupport = (doc.getObject("XZ_Plane011"), [""])
sketch12.MapMode = "FlatFace"
sketch12.addGeometry(Part.Circle(Vector(0, 0, 0), Vector(0, 0, 1), 14.2875), False)
sketch12.addGeometry(Part.Circle(Vector(0, 0, 0), Vector(0, 0, 1), 10.9982), False)
sketch12.addConstraint(Sketcher.Constraint("Coincident", 0, 3, -1, 1))
sketch12.addConstraint(Sketcher.Constraint("Coincident", 1, 3, -1, 1))
sketch12.addConstraint(Sketcher.Constraint("Diameter", 0, Q("1.125 in")))
sketch12.addConstraint(Sketcher.Constraint("Diameter", 1, Q("0.866 in")))
sketch12.setExpression("Constraints[2]", "Params.sketch12_diameter")
sketch12.setExpression("Constraints[3]", "Params.sketch12_diameter2")
pad12 = body12.newObject("PartDesign::Pad", "Pad011")
pad12.Profile = sketch12
pad12.setExpression("Length", "Params.pad12_length")
body13 = doc.addObject("PartDesign::Body", "Body012")

# Sketch on XZ plane
sketch13 = body13.newObject("Sketcher::SketchObject", "Sketch012")
sketch13.AttachmentSupport = (doc.getObject("XZ_Plane012"), [""])
sketch13.MapMode = "FlatFace"
sketch13.addGeometry(Part.Circle(Vector(27.496307, -15.875, 0), Vector(0, 0, 1), 14.2875), False)
sketch13.addGeometry(Part.Circle(Vector(27.496307, -15.875, 0), Vector(0, 0, 1), 10.9982), False)
sketch13.addConstraint(Sketcher.Constraint("Coincident", 1, 3, 0, 3))
sketch13.addConstraint(Sketcher.Constraint("Diameter", 0, Q("1.125 in")))
sketch13.addConstraint(Sketcher.Constraint("Diameter", 1, Q("0.866 in")))
sketch13.addConstraint(Sketcher.Constraint("DistanceY", 0, 3, -1, 1, Q("0.625 in")))
sketch13.addConstraint(Sketcher.Constraint("DistanceX", -1, 1, 0, 3, 27.496307))
sketch13.setExpression("Constraints[1]", "Params.sketch13_diameter")
sketch13.setExpression("Constraints[2]", "Params.sketch13_diameter2")
pad13 = body13.newObject("PartDesign::Pad", "Pad012")
pad13.Profile = sketch13
pad13.setExpression("Length", "Params.pad13_length")
body14 = doc.addObject("PartDesign::Body", "Body013")

# Sketch on XZ plane
sketch14 = body14.newObject("Sketcher::SketchObject", "Sketch013")
sketch14.AttachmentSupport = (doc.getObject("XZ_Plane013"), [""])
sketch14.MapMode = "FlatFace"
sketch14.addGeometry(Part.Circle(Vector(-27.496307, -15.875, 0), Vector(0, 0, 1), 14.2875), False)
sketch14.addGeometry(Part.Circle(Vector(-27.496307, -15.875, 0), Vector(0, 0, 1), 10.9982), False)
sketch14.addConstraint(Sketcher.Constraint("Coincident", 1, 3, 0, 3))
sketch14.addConstraint(Sketcher.Constraint("Diameter", 0, Q("1.125 in")))
sketch14.addConstraint(Sketcher.Constraint("Diameter", 1, Q("0.866 in")))
sketch14.addConstraint(Sketcher.Constraint("DistanceY", 0, 3, -1, 1, Q("0.625 in")))
sketch14.addConstraint(Sketcher.Constraint("DistanceX", 0, 3, -1, 1, 27.496307))
sketch14.setExpression("Constraints[1]", "Params.sketch14_diameter")
sketch14.setExpression("Constraints[2]", "Params.sketch14_diameter2")
pad14 = body14.newObject("PartDesign::Pad", "Pad013")
pad14.Profile = sketch14
pad14.setExpression("Length", "Params.pad14_length")

doc.recompute()
